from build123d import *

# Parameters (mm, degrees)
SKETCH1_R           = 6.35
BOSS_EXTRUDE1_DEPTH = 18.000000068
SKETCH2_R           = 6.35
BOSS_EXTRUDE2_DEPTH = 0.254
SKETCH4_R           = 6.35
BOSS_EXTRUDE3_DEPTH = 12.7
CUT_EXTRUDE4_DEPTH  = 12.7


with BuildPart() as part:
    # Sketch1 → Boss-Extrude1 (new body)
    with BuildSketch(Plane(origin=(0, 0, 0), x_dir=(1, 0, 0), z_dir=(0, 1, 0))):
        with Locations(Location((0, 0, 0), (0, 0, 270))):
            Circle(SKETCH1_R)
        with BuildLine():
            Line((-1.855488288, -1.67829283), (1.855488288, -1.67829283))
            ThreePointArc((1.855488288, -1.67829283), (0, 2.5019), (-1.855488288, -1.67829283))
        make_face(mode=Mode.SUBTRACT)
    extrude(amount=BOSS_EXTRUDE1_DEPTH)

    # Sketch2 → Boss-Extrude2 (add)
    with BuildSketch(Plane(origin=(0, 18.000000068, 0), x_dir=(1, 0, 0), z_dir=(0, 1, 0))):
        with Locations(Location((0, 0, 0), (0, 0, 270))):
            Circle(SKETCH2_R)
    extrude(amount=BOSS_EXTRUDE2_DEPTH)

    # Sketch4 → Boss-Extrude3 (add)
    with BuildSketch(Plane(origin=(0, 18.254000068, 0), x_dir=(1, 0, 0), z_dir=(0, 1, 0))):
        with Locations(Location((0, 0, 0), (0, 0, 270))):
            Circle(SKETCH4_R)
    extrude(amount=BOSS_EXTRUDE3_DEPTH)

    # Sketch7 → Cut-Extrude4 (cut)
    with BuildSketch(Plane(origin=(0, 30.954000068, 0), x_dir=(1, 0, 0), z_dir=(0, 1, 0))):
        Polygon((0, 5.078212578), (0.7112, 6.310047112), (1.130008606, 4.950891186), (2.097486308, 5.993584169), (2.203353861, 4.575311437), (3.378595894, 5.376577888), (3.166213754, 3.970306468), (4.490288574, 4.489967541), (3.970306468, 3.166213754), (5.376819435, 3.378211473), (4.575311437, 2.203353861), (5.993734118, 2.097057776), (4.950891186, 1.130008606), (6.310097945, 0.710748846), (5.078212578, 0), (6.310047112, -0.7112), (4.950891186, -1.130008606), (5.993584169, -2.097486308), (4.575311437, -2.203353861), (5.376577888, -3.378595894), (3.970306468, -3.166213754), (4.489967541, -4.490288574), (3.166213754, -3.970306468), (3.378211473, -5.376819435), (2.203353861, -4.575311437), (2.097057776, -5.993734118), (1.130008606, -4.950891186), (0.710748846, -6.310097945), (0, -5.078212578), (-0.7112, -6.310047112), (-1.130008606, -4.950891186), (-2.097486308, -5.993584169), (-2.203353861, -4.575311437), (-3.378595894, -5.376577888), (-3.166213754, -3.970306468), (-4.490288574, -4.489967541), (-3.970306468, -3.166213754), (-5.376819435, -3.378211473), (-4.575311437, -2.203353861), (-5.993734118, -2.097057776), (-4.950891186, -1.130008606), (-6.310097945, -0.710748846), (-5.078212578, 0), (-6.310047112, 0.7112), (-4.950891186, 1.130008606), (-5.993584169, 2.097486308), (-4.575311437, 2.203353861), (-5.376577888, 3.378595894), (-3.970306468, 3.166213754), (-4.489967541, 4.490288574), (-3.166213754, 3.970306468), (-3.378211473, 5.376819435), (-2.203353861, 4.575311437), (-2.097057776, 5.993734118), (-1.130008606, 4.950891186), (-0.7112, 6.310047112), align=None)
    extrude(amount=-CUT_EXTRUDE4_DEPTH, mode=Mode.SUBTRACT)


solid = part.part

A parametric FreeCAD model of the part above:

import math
import FreeCAD as App
import Part
import Sketcher
from FreeCAD import Vector
Q = App.Units.Quantity


def add_polygon(sketch, points):
    """Adds a closed chain of lines whose ends are joined by coincident constraints."""
    first, n = sketch.GeometryCount, len(points)
    for a, b in zip(points, points[1:] + points[:1]):
        sketch.addGeometry(Part.LineSegment(App.Vector(*a, 0), App.Vector(*b, 0)), False)
    for i in range(n):
        sketch.addConstraint(Sketcher.Constraint("Coincident", first + i, 2, first + (i + 1) % n, 1))

doc = App.newDocument("Part")
params = doc.addObject("Spreadsheet::Sheet", "Params")
for row, (alias, value) in enumerate([
    ("sketch1_diameter", "0.5 in"),
    ("pad1_length", "18 mm"),
    ("sketch2_diameter", "0.5 in"),
    ("pad2_length", "0.01 in"),
    ("sketch3_diameter", "0.5 in"),
    ("pad3_length", "0.5 in"),
    ("sketch4_length", "0.056 in"),
    ("pocket1_length", "0.5 in"),
], start=1):
    params.set(f"A{row}", alias)
    params.set(f"B{row}", "=" + value)
    params.setAlias(f"B{row}", alias)

body = doc.addObject("PartDesign::Body", "Body")

sketch1 = doc.addObject("Sketcher::SketchObject", "Sketch")
body.addObject(sketch1)
sketch1.AttachmentSupport = (doc.XZ_Plane, [""])
sketch1.MapMode = "FlatFace"
sketch1.addGeometry(Part.Circle(Vector(0, 0, 0), Vector(0, 0, 1), 6.3), False)
sketch1.addGeometry(Part.LineSegment(Vector(1.9, 1.7, 0), Vector(-1.9, 1.7, 0)), False)
sketch1.addGeometry(Part.ArcOfCircle(Part.Circle(Vector(0, 0, 0), Vector(0, 0, 1), 2.5), math.radians(138), math.radians(402)), False)
sketch1.addConstraint(Sketcher.Constraint("Coincident", 1, 1, 2, 2))
sketch1.addConstraint(Sketcher.Constraint("Coincident", 2, 1, 1, 2))
sketch1.addConstraint(Sketcher.Constraint("Horizontal", 1))
sketch1.addConstraint(Sketcher.Constraint("Coincident", 0, 3, -1, 1))
sketch1.addConstraint(Sketcher.Constraint("Coincident", 2, 3, -1, 1))
sketch1.addConstraint(Sketcher.Constraint("Diameter", 0, Q("0.5 in")))
sketch1.addConstraint(Sketcher.Constraint("Radius", 2, Q("0.0985 in")))
sketch1.addConstraint(Sketcher.Constraint("DistanceX", 1, 2, 1, 1, 3.710977))
sketch1.setExpression("Constraints[5]", "Params.sketch1_diameter")
pad1 = doc.addObject("PartDesign::Pad", "Pad")
body.addObject(pad1)
pad1.Profile = sketch1
pad1.setExpression("Length", "Params.pad1_length")
pad1.Reversed = True

sketch2 = doc.addObject("Sketcher::SketchObject", "Sketch001")
body.addObject(sketch2)
sketch2.AttachmentSupport = (doc.XZ_Plane, [""])
sketch2.MapMode = "FlatFace"
sketch2.AttachmentOffset = App.Placement(Vector(0, 0, -18), App.Rotation())
sketch2.addGeometry(Part.Circle(Vector(0, 0, 0), Vector(0, 0, 1), 6), False)
sketch2.addConstraint(Sketcher.Constraint("Coincident", 0, 3, -1, 1))
sketch2.addConstraint(Sketcher.Constraint("Diameter", 0, Q("0.5 in")))
sketch2.setExpression("Constraints[1]", "Params.sketch2_diameter")
pad2 = doc.addObject("PartDesign::Pad", "Pad001")
body.addObject(pad2)
pad2.Profile = sketch2
pad2.setExpression("Length", "Params.pad2_length")
pad2.Reversed = True

sketch3 = doc.addObject("Sketcher::SketchObject", "Sketch002")
body.addObject(sketch3)
sketch3.AttachmentSupport = (doc.XZ_Plane, [""])
sketch3.MapMode = "FlatFace"
sketch3.AttachmentOffset = App.Placement(Vector(0, 0, -18.254), App.Rotation())
sketch3.addGeometry(Part.Circle(Vector(0, 0, 0), Vector(0, 0, 1), 6), False)
sketch3.addConstraint(Sketcher.Constraint("Coincident", 0, 3, -1, 1))
sketch3.addConstraint(Sketcher.Constraint("Diameter", 0, Q("0.5 in")))
sketch3.setExpression("Constraints[1]", "Params.sketch3_diameter")
pad3 = doc.addObject("PartDesign::Pad", "Pad002")
body.addObject(pad3)
pad3.Profile = sketch3
pad3.setExpression("Length", "Params.pad3_length")
pad3.Reversed = True

sketch4 = doc.addObject("Sketcher::SketchObject", "Sketch003")
body.addObject(sketch4)
sketch4.AttachmentSupport = (doc.XZ_Plane, [""])
sketch4.MapMode = "FlatFace"
sketch4.AttachmentOffset = App.Placement(Vector(0, 0, -30.954), App.Rotation())
add_polygon(sketch4, [(0.7, -6.3), (0, -5.1), (-0.7, -6.3), (-1.1, -5), (-2.1, -6), (-2.2, -4.6), (-3.4, -5.4), (-3.2, -4), (-4.5, -4.5), (-4, -3.2), (-5.4, -3.4), (-4.6, -2.2), (-6, -2.1), (-5, -1.1), (-6.3, -0.7), (-5.1, 0), (-6.3, 0.7), (-5, 1.1), (-6, 2.1), (-4.6, 2.2), (-5.4, 3.4), (-4, 3.2), (-4.5, 4.5), (-3.2, 4), (-3.4, 5.4), (-2.2, 4.6), (-2.1, 6), (-1.1, 5), (-0.7, 6.3), (0, 5.1), (0.7, 6.3), (1.1, 5), (2.1, 6), (2.2, 4.6), (3.4, 5.4), (3.2, 4), (4.5, 4.5), (4, 3.2), (5.4, 3.4), (4.6, 2.2), (6, 2.1), (5, 1.1), (6.3, 0.7), (5.1, 0), (6.3, -0.7), (5, -1.1), (6, -2.1), (4.6, -2.2), (5.4, -3.4), (4, -3.2), (4.5, -4.5), (3.2, -4), (3.4, -5.4), (2.2, -4.6), (2.1, -6), (1.1, -5)])
sketch4.addConstraint(Sketcher.Constraint("Symmetric", 0, 2, 28, 2, -1, 1))
sketch4.addConstraint(Sketcher.Constraint("Symmetric", 2, 2, 30, 2, -1, 1))
sketch4.addConstraint(Sketcher.Constraint("Symmetric", 3, 2, 31, 2, -1, 1))
sketch4.addConstraint(Sketcher.Constraint("Symmetric", 4, 2, 32, 2, -1, 1))
sketch4.addConstraint(Sketcher.Constraint("Symmetric", 5, 2, 33, 2, -1, 1))
sketch4.addConstraint(Sketcher.Constraint("Symmetric", 6, 2, 34, 2, -1, 1))
sketch4.addConstraint(Sketcher.Constraint("Symmetric", 7, 2, 35, 2, -1, 1))
sketch4.addConstraint(Sketcher.Constraint("Symmetric", 8, 2, 36, 2, -1, 1))
sketch4.addConstraint(Sketcher.Constraint("Symmetric", 9, 2, 37, 2, -1, 1))
sketch4.addConstraint(Sketcher.Constraint("Symmetric", 10, 2, 38, 2, -1, 1))
sketch4.addConstraint(Sketcher.Constraint("Symmetric", 11, 2, 39, 2, -1, 1))
sketch4.addConstraint(Sketcher.Constraint("Symmetric", 12, 2, 40, 2, -1, 1))
sketch4.addConstraint(Sketcher.Constraint("Symmetric", 13, 2, 41, 2, -1, 1))
sketch4.addConstraint(Sketcher.Constraint("Symmetric", 14, 2, 42, 2, -1, 1))
sketch4.addConstraint(Sketcher.Constraint("Symmetric", 15, 2, 43, 2, -1, 1))
sketch4.addConstraint(Sketcher.Constraint("Symmetric", 16, 2, 44, 2, -1, 1))
sketch4.addConstraint(Sketcher.Constraint("Symmetric", 17, 2, 45, 2, -1, 1))
sketch4.addConstraint(Sketcher.Constraint("Symmetric", 18, 2, 46, 2, -1, 1))
sketch4.addConstraint(Sketcher.Constraint("Symmetric", 19, 2, 47, 2, -1, 1))
sketch4.addConstraint(Sketcher.Constraint("Symmetric", 20, 2, 48, 2, -1, 1))
sketch4.addConstraint(Sketcher.Constraint("Symmetric", 21, 2, 49, 2, -1, 1))
sketch4.addConstraint(Sketcher.Constraint("Symmetric", 22, 2, 50, 2, -1, 1))
sketch4.addConstraint(Sketcher.Constraint("Symmetric", 23, 2, 51, 2, -1, 1))
sketch4.addConstraint(Sketcher.Constraint("Symmetric", 24, 2, 52, 2, -1, 1))
sketch4.addConstraint(Sketcher.Constraint("Symmetric", 25, 2, 53, 2, -1, 1))
sketch4.addConstraint(Sketcher.Constraint("Symmetric", 26, 2, 54, 2, -1, 1))
sketch4.addConstraint(Sketcher.Constraint("Symmetric", 27, 2, 55, 2, -1, 1))
sketch4.addConstraint(Sketcher.Constraint("Symmetric", 26, 2, 30, 2, -2))
sketch4.addConstraint(Sketcher.Constraint("Symmetric", 24, 2, 32, 2, -2))
sketch4.addConstraint(Sketcher.Constraint("Symmetric", 22, 2, 34, 2, -2))
sketch4.addConstraint(Sketcher.Constraint("Symmetric", 20, 2, 36, 2, -2))
sketch4.addConstraint(Sketcher.Constraint("Symmetric", 18, 2, 38, 2, -2))
sketch4.addConstraint(Sketcher.Constraint("Symmetric", 16, 2, 40, 2, -2))
sketch4.addConstraint(Sketcher.Constraint("Symmetric", 1, 2, 55, 2, -2))
sketch4.addConstraint(Sketcher.Constraint("PointOnObject", 0, 2, -2))
sketch4.addConstraint(Sketcher.Constraint("PointOnObject", 14, 2, -1))
sketch4.addConstraint(Sketcher.Constraint("Perpendicular", 0, 14))
sketch4.addConstraint(Sketcher.Constraint("Perpendicular", 3, 17))
sketch4.addConstraint(Sketcher.Constraint("Perpendicular", 4, 18))
sketch4.addConstraint(Sketcher.Constraint("Perpendicular", 5, 19))
sketch4.addConstraint(Sketcher.Constraint("Perpendicular", 6, 20))
sketch4.addConstraint(Sketcher.Constraint("Perpendicular", 7, 21))
sketch4.addConstraint(Sketcher.Constraint("Perpendicular", 8, 22))
sketch4.addConstraint(Sketcher.Constraint("Perpendicular", 9, 23))
sketch4.addConstraint(Sketcher.Constraint("Perpendicular", 10, 24))
sketch4.addConstraint(Sketcher.Constraint("Perpendicular", 11, 25))
sketch4.addConstraint(Sketcher.Constraint("Perpendicular", 12, 26))
sketch4.addConstraint(Sketcher.Constraint("Perpendicular", 13, 27))
sketch4.addConstraint(Sketcher.Constraint("Perpendicular", 15, 29))
sketch4.addConstraint(Sketcher.Constraint("Perpendicular", 16, 30))
sketch4.addConstraint(Sketcher.Constraint("Equal", 2, 3))
sketch4.addConstraint(Sketcher.Constraint("Equal", 1, 4))
sketch4.addConstraint(Sketcher.Constraint("Equal", 3, 5))
sketch4.addConstraint(Sketcher.Constraint("Equal", 4, 6))
sketch4.addConstraint(Sketcher.Constraint("Equal", 5, 7))
sketch4.addConstraint(Sketcher.Constraint("Equal", 6, 8))
sketch4.addConstraint(Sketcher.Constraint("Equal", 7, 9))
sketch4.addConstraint(Sketcher.Constraint("Equal", 8, 10))
sketch4.addConstraint(Sketcher.Constraint("Equal", 9, 11))
sketch4.addConstraint(Sketcher.Constraint("Equal", 10, 12))
sketch4.addConstraint(Sketcher.Constraint("Equal", 11, 13))
sketch4.addConstraint(Sketcher.Constraint("Equal", 12, 14))
sketch4.addConstraint(Sketcher.Constraint("Equal", 13, 15))
sketch4.addConstraint(Sketcher.Constraint("Equal", 14, 16))
sketch4.addConstraint(Sketcher.Constraint("Equal", 15, 17))
sketch4.addConstraint(Sketcher.Constraint("Equal", 16, 18))
sketch4.addConstraint(Sketcher.Constraint("Equal", 17, 19))
sketch4.addConstraint(Sketcher.Constraint("Equal", 18, 20))
sketch4.addConstraint(Sketcher.Constraint("Equal", 19, 21))
sketch4.addConstraint(Sketcher.Constraint("Angle", 0, Q("120 deg")))
sketch4.addConstraint(Sketcher.Constraint("Distance", 0, Q("0.056 in")))
sketch4.addConstraint(Sketcher.Constraint("DistanceY", 0, 2, 4, 2, 0.502901))
sketch4.addConstraint(Sketcher.Constraint("Distance", 2, 1.422219))
sketch4.addConstraint(Sketcher.Constraint("DistanceX", 2, 2, -1, 1, 1.130009))
sketch4.addConstraint(Sketcher.Constraint("DistanceY", 2, 2, -1, 1, 4.950891))
sketch4.addConstraint(Sketcher.Constraint("DistanceX", 5, 2, -1, 1, 3.378211))
sketch4.addConstraint(Sketcher.Constraint("DistanceY", 5, 2, -1, 1, 5.376819))
sketch4.addConstraint(Sketcher.Constraint("DistanceY", 7, 2, -1, 1, 4.490289))
sketch4.setExpression("Constraints[126]", "Params.sketch4_length")
pocket1 = doc.addObject("PartDesign::Pocket", "Pocket")
body.addObject(pocket1)
pocket1.Profile = sketch4
pocket1.setExpression("Length", "Params.pocket1_length")
pocket1.Reversed = True

doc.recompute()
